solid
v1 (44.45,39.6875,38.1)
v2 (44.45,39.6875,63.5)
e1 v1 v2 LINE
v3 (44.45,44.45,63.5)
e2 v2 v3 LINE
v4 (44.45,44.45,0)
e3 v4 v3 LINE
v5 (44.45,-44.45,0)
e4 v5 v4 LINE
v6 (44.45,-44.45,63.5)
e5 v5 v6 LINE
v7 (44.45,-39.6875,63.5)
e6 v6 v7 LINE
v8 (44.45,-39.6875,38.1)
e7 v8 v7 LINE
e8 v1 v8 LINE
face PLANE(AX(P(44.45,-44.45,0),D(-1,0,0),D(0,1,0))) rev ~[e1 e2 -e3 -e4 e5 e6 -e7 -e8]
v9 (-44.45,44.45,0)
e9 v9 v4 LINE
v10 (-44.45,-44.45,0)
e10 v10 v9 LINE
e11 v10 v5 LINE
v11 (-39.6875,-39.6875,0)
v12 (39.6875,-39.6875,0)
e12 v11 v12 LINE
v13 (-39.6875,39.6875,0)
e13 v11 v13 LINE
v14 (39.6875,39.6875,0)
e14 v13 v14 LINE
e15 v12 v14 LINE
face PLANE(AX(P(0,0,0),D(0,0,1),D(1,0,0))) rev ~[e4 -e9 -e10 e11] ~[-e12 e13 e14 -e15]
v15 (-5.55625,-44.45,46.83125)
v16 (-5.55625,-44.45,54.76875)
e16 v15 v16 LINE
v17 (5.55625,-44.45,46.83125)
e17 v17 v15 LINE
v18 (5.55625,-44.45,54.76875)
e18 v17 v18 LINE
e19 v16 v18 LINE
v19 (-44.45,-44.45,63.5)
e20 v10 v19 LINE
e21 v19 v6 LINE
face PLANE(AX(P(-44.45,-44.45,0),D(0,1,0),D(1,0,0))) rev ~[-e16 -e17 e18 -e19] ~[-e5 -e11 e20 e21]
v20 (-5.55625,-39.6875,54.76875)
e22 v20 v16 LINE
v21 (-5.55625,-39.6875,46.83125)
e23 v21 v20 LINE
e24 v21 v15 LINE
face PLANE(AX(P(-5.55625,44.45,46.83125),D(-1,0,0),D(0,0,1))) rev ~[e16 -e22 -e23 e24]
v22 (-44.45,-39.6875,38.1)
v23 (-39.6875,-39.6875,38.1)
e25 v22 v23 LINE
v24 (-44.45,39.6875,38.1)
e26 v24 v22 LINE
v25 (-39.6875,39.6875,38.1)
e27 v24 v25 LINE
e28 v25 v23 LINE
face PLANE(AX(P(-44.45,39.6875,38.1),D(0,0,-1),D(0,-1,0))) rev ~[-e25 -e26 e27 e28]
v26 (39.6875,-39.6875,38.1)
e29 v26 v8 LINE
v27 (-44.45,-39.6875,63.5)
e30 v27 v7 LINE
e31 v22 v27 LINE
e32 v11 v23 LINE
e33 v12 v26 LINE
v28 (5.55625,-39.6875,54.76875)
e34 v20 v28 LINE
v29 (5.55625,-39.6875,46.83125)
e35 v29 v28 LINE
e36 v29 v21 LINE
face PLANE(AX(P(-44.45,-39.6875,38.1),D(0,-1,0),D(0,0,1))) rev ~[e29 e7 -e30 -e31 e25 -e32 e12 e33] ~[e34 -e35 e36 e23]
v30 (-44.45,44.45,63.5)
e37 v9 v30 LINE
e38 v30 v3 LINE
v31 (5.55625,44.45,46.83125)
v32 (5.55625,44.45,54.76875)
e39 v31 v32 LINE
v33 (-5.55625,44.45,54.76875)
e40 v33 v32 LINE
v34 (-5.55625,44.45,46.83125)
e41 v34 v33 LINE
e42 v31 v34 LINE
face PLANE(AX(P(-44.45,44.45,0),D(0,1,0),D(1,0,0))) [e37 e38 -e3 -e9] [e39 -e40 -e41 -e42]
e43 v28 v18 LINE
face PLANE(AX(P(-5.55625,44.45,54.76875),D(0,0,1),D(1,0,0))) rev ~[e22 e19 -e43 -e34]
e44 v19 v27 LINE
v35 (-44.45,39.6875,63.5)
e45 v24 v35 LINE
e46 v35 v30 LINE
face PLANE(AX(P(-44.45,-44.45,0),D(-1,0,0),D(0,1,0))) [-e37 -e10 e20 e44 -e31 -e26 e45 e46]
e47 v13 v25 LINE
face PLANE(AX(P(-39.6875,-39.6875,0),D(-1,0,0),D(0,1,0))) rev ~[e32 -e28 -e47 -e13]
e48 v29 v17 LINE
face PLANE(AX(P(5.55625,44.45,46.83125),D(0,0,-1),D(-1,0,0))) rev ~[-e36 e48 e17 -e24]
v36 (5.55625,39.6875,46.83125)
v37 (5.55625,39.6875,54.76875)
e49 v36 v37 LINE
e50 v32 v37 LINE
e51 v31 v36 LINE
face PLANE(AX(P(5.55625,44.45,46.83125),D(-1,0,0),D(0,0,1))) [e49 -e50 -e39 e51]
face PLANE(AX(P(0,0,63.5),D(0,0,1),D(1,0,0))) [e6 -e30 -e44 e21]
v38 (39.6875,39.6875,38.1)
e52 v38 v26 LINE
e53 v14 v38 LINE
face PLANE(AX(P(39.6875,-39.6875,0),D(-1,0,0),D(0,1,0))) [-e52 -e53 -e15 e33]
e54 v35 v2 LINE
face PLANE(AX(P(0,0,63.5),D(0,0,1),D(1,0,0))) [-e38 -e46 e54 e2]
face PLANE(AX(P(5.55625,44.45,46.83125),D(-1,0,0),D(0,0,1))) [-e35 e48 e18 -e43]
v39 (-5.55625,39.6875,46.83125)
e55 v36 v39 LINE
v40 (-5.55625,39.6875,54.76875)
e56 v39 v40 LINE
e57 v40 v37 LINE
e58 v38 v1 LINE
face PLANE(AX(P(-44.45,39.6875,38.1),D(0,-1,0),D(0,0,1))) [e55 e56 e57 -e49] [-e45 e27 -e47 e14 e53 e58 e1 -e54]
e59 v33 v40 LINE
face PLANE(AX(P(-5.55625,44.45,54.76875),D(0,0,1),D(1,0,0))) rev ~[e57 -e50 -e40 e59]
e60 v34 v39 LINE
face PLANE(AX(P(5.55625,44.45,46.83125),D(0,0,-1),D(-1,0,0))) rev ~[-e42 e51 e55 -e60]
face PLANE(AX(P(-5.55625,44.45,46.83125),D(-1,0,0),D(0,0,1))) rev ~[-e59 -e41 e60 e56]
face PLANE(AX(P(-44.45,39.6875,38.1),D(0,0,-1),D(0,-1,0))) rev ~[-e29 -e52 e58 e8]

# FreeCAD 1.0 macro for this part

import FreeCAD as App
import Part
import Sketcher
Q = App.Units.Quantity

doc = App.newDocument("Part")
body = doc.addObject("PartDesign::Body", "Body")

# Sketch on XY plane
sketch1 = body.newObject("Sketcher::SketchObject", "Sketch")
sketch1.AttachmentSupport = (doc.getObject("XY_Plane"), [""])
sketch1.MapMode = "FlatFace"
sketch1.addGeometry([
    Part.LineSegment(App.Vector(-44.45, 44.45, 0), App.Vector(-44.45, -44.45, 0)),  # 0
    Part.LineSegment(App.Vector(-44.45, -44.45, 0), App.Vector(44.45, -44.45, 0)),  # 1
    Part.LineSegment(App.Vector(44.45, -44.45, 0), App.Vector(44.45, 44.45, 0)),  # 2
    Part.LineSegment(App.Vector(44.45, 44.45, 0), App.Vector(-44.45, 44.45, 0)),  # 3
    Part.LineSegment(App.Vector(39.6875, -39.6875, 0), App.Vector(-39.6875, -39.6875, 0)),  # 4
    Part.LineSegment(App.Vector(-39.6875, -39.6875, 0), App.Vector(-39.6875, 39.6875, 0)),  # 5
    Part.LineSegment(App.Vector(-39.6875, 39.6875, 0), App.Vector(39.6875, 39.6875, 0)),  # 6
    Part.LineSegment(App.Vector(39.6875, 39.6875, 0), App.Vector(39.6875, -39.6875, 0)),  # 7
], False)
sketch1.addConstraint([
    Sketcher.Constraint("Coincident", 0, 2, 1, 1),
    Sketcher.Constraint("Coincident", 1, 2, 2, 1),
    Sketcher.Constraint("Coincident", 2, 2, 3, 1),
    Sketcher.Constraint("Coincident", 3, 2, 0, 1),
    Sketcher.Constraint("Coincident", 4, 2, 5, 1),
    Sketcher.Constraint("Coincident", 5, 2, 6, 1),
    Sketcher.Constraint("Coincident", 6, 2, 7, 1),
    Sketcher.Constraint("Coincident", 7, 2, 4, 1),
    Sketcher.Constraint("Vertical", 0),
    Sketcher.Constraint("Horizontal", 1),
    Sketcher.Constraint("Vertical", 2),
    Sketcher.Constraint("Horizontal", 3),
    Sketcher.Constraint("Horizontal", 4),
    Sketcher.Constraint("Vertical", 5),
    Sketcher.Constraint("Horizontal", 6),
    Sketcher.Constraint("Vertical", 7),
    Sketcher.Constraint("Symmetric", 0, 2, 2, 2, -1, 1),
    Sketcher.Constraint("Symmetric", 4, 2, 6, 2, -1, 1),
    Sketcher.Constraint("Equal", 3, 0),
    Sketcher.Constraint("Equal", 6, 5),
    Sketcher.Constraint("DistanceX", 1, 1, 1, 2, Q("3.5 in")),
    Sketcher.Constraint("DistanceX", 4, 2, 4, 1, Q("3.125 in")),
])
pad1 = body.newObject("PartDesign::Pad", "Pad")
pad1.Profile = sketch1
pad1.Length = Q("2.5 in")

# Sketch on XZ plane
sketch2 = body.newObject("Sketcher::SketchObject", "Sketch001")
sketch2.AttachmentSupport = (doc.getObject("XZ_Plane"), [""])
sketch2.MapMode = "FlatFace"
sketch2.AttachmentOffset = App.Placement(App.Vector(0, 0, -1.75 * 25.4), App.Rotation())
sketch2.addGeometry([
    Part.LineSegment(App.Vector(-5.55625, 46.83125, 0), App.Vector(-5.55625, 54.76875, 0)),
    Part.LineSegment(App.Vector(-5.55625, 54.76875, 0), App.Vector(5.55625, 54.76875, 0)),
    Part.LineSegment(App.Vector(5.55625, 54.76875, 0), App.Vector(5.55625, 46.83125, 0)),
    Part.LineSegment(App.Vector(5.55625, 46.83125, 0), App.Vector(-5.55625, 46.83125, 0)),
], False)
sketch2.addConstraint([
    Sketcher.Constraint("Coincident", 0, 2, 1, 1),
    Sketcher.Constraint("Coincident", 1, 2, 2, 1),
    Sketcher.Constraint("Coincident", 2, 2, 3, 1),
    Sketcher.Constraint("Coincident", 3, 2, 0, 1),
    Sketcher.Constraint("Vertical", 0),
    Sketcher.Constraint("Horizontal", 1),
    Sketcher.Constraint("Vertical", 2),
    Sketcher.Constraint("Horizontal", 3),
    Sketcher.Constraint("DistanceX", 1, 1, 1, 2, Q("0.4375 in")),
    Sketcher.Constraint("DistanceY", 0, 1, 0, 2, Q("0.3125 in")),
    Sketcher.Constraint("DistanceX", 0, 2, -1, 1, Q("0.21875 in")),
    Sketcher.Constraint("DistanceY", -1, 1, 0, 2, Q("2.15625 in")),
])
pocket1 = body.newObject("PartDesign::Pocket", "Pocket")
pocket1.Profile = sketch2
pocket1.Type = "ThroughAll"
pocket1.Reversed = True

# Sketch on YZ plane
sketch3 = body.newObject("Sketcher::SketchObject", "Sketch002")
sketch3.AttachmentSupport = (doc.getObject("YZ_Plane"), [""])
sketch3.MapMode = "FlatFace"
sketch3.AttachmentOffset = App.Placement(App.Vector(0, 0, -1.75 * 25.4), App.Rotation())
sketch3.addGeometry([
    Part.LineSegment(App.Vector(39.6875, 63.5, 0), App.Vector(39.6875, 38.1, 0)),
    Part.LineSegment(App.Vector(39.6875, 38.1, 0), App.Vector(-39.6875, 38.1, 0)),
    Part.LineSegment(App.Vector(-39.6875, 38.1, 0), App.Vector(-39.6875, 63.5, 0)),
    Part.LineSegment(App.Vector(-39.6875, 63.5, 0), App.Vector(39.6875, 63.5, 0)),
], False)
sketch3.addConstraint([
    Sketcher.Constraint("Coincident", 0, 2, 1, 1),
    Sketcher.Constraint("Coincident", 1, 2, 2, 1),
    Sketcher.Constraint("Coincident", 2, 2, 3, 1),
    Sketcher.Constraint("Coincident", 3, 2, 0, 1),
    Sketcher.Constraint("Vertical", 0),
    Sketcher.Constraint("Horizontal", 1),
    Sketcher.Constraint("Vertical", 2),
    Sketcher.Constraint("Horizontal", 3),
    Sketcher.Constraint("DistanceY", 0, 2, 0, 1, Q("1 in")),
    Sketcher.Constraint("DistanceY", -1, 1, 0, 2, Q("1.5 in")),
    Sketcher.Constraint("DistanceX", 1, 2, 1, 1, Q("3.125 in")),
    Sketcher.Constraint("DistanceX", -1, 1, 0, 2, Q("1.5625 in")),
])
pocket2 = body.newObject("PartDesign::Pocket", "Pocket001")
pocket2.Profile = sketch3
pocket2.Type = "ThroughAll"
pocket2.Reversed = True

doc.recompute()
